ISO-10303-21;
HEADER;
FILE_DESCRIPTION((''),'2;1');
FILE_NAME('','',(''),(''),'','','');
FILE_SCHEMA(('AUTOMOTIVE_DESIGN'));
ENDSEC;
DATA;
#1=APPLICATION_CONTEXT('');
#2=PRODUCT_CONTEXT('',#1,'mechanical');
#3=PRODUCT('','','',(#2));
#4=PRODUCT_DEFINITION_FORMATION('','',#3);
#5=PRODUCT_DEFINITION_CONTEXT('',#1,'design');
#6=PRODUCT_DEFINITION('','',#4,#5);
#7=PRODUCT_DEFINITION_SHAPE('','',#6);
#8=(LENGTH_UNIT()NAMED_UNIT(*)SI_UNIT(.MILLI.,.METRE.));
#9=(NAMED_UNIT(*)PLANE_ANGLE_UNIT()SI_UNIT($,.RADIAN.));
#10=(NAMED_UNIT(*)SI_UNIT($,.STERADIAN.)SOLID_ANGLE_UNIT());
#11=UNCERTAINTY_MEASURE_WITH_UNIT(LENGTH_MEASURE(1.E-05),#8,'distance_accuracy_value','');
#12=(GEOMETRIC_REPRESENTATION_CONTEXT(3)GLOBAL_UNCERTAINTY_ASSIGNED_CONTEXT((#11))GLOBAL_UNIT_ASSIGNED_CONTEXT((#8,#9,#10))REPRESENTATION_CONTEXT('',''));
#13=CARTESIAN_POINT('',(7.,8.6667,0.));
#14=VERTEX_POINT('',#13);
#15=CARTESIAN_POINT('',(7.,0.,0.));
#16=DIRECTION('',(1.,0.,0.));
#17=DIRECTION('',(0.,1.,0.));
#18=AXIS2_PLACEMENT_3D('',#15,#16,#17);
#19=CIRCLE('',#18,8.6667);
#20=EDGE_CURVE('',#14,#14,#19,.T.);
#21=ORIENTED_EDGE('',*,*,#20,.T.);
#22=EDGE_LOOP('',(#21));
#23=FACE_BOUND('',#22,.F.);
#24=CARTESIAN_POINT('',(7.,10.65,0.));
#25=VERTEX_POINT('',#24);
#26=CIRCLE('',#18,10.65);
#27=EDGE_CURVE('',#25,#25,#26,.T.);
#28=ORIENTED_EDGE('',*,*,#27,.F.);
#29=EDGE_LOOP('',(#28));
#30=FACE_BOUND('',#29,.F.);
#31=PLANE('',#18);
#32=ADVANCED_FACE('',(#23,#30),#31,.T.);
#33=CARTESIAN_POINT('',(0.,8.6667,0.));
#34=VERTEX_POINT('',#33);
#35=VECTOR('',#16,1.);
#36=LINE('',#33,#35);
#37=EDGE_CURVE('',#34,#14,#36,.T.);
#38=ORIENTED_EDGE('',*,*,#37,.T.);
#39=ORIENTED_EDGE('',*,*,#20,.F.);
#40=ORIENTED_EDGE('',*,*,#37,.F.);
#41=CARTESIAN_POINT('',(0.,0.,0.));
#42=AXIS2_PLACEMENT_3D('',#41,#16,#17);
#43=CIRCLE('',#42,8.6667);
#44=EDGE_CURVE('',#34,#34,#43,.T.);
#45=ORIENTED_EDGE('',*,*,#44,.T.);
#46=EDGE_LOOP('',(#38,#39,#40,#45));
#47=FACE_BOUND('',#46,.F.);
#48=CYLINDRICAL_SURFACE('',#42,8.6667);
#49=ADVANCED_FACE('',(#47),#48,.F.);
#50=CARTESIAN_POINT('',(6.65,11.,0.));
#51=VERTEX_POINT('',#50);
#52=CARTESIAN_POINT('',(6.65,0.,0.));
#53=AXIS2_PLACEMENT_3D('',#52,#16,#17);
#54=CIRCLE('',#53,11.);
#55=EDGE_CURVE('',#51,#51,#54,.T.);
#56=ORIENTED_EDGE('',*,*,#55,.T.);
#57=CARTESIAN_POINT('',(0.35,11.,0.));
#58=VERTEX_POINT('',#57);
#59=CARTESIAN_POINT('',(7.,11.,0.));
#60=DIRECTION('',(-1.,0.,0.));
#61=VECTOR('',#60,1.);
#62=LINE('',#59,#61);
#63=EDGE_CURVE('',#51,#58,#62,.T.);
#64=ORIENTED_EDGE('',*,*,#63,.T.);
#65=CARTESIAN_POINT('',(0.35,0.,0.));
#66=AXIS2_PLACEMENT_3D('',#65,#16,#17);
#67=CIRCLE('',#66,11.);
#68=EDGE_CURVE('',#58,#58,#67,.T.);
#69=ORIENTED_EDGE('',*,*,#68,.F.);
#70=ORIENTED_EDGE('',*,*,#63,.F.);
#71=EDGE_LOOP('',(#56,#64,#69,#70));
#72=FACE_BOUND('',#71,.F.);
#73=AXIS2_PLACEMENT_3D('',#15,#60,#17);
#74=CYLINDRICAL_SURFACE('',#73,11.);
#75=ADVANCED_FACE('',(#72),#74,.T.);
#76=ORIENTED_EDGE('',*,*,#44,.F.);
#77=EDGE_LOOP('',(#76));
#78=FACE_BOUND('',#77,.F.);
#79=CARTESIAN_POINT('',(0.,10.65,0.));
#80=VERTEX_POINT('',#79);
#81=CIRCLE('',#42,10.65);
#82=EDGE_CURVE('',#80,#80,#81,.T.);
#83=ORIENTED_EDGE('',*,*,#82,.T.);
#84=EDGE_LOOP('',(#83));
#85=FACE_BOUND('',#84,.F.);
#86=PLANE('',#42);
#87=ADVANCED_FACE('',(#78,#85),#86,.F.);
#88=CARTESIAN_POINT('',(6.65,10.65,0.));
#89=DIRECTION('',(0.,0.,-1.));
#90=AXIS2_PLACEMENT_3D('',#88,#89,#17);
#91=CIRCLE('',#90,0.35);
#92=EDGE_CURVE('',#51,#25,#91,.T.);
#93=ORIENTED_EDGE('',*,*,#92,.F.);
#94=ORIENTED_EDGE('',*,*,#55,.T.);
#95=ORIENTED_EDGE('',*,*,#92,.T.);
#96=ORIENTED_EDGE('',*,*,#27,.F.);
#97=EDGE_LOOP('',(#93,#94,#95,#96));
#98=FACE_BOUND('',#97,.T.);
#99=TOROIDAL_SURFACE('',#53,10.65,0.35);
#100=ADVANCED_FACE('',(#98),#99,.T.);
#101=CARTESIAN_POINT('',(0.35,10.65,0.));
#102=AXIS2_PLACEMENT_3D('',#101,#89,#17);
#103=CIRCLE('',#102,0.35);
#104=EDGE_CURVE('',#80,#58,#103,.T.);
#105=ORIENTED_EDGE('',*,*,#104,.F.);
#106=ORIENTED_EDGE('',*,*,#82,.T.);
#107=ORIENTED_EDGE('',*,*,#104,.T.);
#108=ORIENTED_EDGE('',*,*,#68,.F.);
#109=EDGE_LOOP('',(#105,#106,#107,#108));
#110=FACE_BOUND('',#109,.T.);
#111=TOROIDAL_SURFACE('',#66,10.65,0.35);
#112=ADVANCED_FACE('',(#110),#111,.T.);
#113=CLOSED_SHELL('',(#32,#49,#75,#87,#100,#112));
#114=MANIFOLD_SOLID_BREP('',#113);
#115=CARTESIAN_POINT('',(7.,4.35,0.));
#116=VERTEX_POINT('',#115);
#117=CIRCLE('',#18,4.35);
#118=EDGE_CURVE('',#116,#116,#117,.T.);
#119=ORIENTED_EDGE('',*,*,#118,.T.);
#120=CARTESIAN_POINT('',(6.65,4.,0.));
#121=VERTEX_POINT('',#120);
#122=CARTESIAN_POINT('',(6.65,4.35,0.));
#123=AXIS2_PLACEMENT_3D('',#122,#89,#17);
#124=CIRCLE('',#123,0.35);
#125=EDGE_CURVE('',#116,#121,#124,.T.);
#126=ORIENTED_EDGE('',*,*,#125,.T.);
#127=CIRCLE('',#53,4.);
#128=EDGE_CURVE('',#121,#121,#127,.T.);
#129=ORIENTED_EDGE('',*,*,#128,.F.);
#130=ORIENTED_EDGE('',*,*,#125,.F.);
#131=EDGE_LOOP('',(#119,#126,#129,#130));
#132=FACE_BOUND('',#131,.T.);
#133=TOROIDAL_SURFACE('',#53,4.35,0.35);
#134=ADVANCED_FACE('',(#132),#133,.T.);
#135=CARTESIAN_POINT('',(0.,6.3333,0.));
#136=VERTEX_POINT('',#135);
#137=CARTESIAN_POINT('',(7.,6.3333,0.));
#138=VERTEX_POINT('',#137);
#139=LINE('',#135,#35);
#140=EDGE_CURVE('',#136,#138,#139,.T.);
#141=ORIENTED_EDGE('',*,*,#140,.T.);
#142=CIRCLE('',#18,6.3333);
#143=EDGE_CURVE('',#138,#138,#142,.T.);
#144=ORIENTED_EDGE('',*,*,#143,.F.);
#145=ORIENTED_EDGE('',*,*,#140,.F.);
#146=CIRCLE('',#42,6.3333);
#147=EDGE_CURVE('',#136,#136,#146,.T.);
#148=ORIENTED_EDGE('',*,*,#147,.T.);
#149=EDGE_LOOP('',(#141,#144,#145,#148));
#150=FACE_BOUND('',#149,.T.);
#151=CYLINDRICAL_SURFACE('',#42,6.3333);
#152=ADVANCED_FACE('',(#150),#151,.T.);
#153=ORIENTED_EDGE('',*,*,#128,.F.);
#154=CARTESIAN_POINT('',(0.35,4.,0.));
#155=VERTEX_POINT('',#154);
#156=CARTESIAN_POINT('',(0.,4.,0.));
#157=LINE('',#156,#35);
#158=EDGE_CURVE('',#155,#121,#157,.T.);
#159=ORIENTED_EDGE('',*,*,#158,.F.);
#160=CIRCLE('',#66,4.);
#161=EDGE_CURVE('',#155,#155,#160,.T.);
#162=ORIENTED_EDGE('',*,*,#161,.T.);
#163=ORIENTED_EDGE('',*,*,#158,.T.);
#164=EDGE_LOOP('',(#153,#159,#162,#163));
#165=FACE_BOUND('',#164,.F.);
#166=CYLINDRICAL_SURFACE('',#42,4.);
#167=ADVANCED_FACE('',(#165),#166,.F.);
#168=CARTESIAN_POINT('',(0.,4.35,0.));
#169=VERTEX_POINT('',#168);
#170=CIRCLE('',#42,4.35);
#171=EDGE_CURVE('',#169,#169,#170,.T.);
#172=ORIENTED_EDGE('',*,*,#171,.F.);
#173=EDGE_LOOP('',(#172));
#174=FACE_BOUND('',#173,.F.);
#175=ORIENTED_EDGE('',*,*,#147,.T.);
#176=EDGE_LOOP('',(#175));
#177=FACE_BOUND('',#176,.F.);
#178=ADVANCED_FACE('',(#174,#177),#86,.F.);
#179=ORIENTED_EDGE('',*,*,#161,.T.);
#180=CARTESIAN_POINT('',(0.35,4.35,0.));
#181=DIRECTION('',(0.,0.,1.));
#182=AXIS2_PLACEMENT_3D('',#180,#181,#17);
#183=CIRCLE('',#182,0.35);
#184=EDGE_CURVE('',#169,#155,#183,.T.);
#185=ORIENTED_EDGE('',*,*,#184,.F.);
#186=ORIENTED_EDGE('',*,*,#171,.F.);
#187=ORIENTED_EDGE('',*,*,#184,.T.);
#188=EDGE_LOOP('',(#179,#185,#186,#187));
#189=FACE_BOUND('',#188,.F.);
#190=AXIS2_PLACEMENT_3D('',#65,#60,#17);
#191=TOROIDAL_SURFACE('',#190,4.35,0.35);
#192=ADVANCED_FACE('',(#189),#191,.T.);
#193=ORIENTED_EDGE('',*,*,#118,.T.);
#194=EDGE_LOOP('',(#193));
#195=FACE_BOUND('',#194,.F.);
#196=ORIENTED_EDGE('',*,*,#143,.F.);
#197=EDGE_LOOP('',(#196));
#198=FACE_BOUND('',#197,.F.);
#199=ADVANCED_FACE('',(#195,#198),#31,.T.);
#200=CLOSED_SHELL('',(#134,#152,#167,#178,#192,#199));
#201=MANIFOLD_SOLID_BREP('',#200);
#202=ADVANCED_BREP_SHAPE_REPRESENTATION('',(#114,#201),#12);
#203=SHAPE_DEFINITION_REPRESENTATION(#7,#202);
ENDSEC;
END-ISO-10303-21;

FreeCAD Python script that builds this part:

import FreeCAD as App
import Part
import Sketcher


def edges_at(feature, points):
    """Names of the edges that pass closest to the given points."""
    edges = feature.Shape.Edges
    near = lambda p: min(range(len(edges)), key=lambda i: edges[i].distToShape(Part.Vertex(*p))[0])
    return sorted({f"Edge{near(p) + 1}" for p in points})


def add_polygon(sketch, points):
    """Adds a closed chain of lines whose ends are joined by coincident constraints."""
    first, n = sketch.GeometryCount, len(points)
    for a, b in zip(points, points[1:] + points[:1]):
        sketch.addGeometry(Part.LineSegment(App.Vector(*a, 0), App.Vector(*b, 0)), False)
    for i in range(n):
        sketch.addConstraint(Sketcher.Constraint("Coincident", first + i, 2, first + (i + 1) % n, 1))

doc = App.newDocument("Part")
body = doc.addObject("PartDesign::Body", "Body")
body.AllowCompound = True

# Sketch on XY plane
sketch1 = doc.addObject("Sketcher::SketchObject", "Sketch")
body.addObject(sketch1)
sketch1.AttachmentSupport = (doc.XY_Plane, [""])
sketch1.MapMode = "FlatFace"
add_polygon(sketch1, [(0, 6.3), (0, 4), (7, 4), (7, 6.3)])  # lines 0-3
add_polygon(sketch1, [(0, 11), (0, 8.7), (7, 8.7), (7, 11)])  # lines 4-7
sketch1.addConstraint([
    Sketcher.Constraint("Vertical", 0),
    Sketcher.Constraint("Horizontal", 1),
    Sketcher.Constraint("Vertical", 2),
    Sketcher.Constraint("Horizontal", 3),
    Sketcher.Constraint("Vertical", 4),
    Sketcher.Constraint("Horizontal", 5),
    Sketcher.Constraint("Vertical", 6),
    Sketcher.Constraint("Horizontal", 7),
    Sketcher.Constraint("PointOnObject", 0, 2, -2),
    Sketcher.Constraint("PointOnObject", 4, 2, -2),
    Sketcher.Constraint("Vertical", 2, 2, 5, 2),
    Sketcher.Constraint("Equal", 2, 4),
    Sketcher.Constraint("DistanceX", 1, 1, 1, 2, 7.0),
    Sketcher.Constraint("DistanceY", 1, 2, 6, 2, 7.0),
    Sketcher.Constraint("DistanceY", -1, 1, 0, 2, 4.0),
    Sketcher.Constraint("DistanceY", 0, 2, 0, 1, 2.3333),
])
revolution = doc.addObject("PartDesign::Revolution", "Revolution")
body.addObject(revolution)
revolution.Profile = sketch1
revolution.ReferenceAxis = (sketch1, ["H_Axis"])
revolution.Angle = 360
doc.recompute()

fillet = doc.addObject("PartDesign::Fillet", "Fillet")
body.addObject(fillet)
fillet.Base = (revolution, edges_at(revolution, [
    (0, -11, 0),
    (7, -11, 0),
    (0, -4, 0),
    (7, -4, 0),
]))
fillet.Radius = 0.35

doc.recompute()
